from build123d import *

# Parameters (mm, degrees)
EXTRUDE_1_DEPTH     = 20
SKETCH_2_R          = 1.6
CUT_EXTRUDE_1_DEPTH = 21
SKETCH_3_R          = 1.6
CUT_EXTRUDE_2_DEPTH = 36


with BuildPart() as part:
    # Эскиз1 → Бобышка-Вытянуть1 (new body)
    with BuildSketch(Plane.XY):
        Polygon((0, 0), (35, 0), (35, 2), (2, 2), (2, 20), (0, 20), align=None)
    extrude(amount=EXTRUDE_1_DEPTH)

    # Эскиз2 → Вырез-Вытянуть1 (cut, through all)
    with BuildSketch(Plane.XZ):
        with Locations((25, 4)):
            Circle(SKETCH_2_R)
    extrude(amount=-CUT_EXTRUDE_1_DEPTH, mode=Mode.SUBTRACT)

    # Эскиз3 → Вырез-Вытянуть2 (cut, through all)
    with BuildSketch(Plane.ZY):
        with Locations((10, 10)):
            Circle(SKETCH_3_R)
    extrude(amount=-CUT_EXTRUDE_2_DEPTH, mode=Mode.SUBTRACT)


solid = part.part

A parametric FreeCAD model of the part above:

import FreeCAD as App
import Part
import Sketcher
from FreeCAD import Vector

doc = App.newDocument("Part")
params = doc.addObject("Spreadsheet::Sheet", "Params")
for row, (alias, value) in enumerate([
    ("sketch1_width", "35 mm"),
    ("sketch1_width2", "33 mm"),
    ("sketch1_height", "18 mm"),
    ("pad1_length", "20 mm"),
    ("sketch2_diameter", "3.2 mm"),
    ("sketch3_diameter", "3.2 mm"),
], start=1):
    params.set(f"A{row}", alias)
    params.set(f"B{row}", "=" + value)
    params.setAlias(f"B{row}", alias)

body = doc.addObject("PartDesign::Body", "Body")

# Sketch on XY plane
sketch1 = body.newObject("Sketcher::SketchObject", "Sketch")
sketch1.AttachmentSupport = (doc.getObject("XY_Plane"), [""])
sketch1.MapMode = "FlatFace"
sketch1.addGeometry([
    Part.LineSegment(Vector(0, 0, 0), Vector(35, 0, 0)),  # 0
    Part.LineSegment(Vector(35, 0, 0), Vector(35, 2, 0)),  # 1
    Part.LineSegment(Vector(35, 2, 0), Vector(2, 2, 0)),  # 2
    Part.LineSegment(Vector(2, 2, 0), Vector(2, 20, 0)),  # 3
    Part.LineSegment(Vector(2, 20, 0), Vector(0, 20, 0)),  # 4
    Part.LineSegment(Vector(0, 20, 0), Vector(0, 0, 0)),  # 5
], False)
sketch1.addConstraint([
    Sketcher.Constraint("Coincident", 0, 2, 1, 1),
    Sketcher.Constraint("Coincident", 1, 2, 2, 1),
    Sketcher.Constraint("Coincident", 2, 2, 3, 1),
    Sketcher.Constraint("Coincident", 3, 2, 4, 1),
    Sketcher.Constraint("Coincident", 4, 2, 5, 1),
    Sketcher.Constraint("Coincident", 5, 2, 0, 1),
    Sketcher.Constraint("Horizontal", 0),
    Sketcher.Constraint("Vertical", 1),
    Sketcher.Constraint("Horizontal", 2),
    Sketcher.Constraint("Vertical", 3),
    Sketcher.Constraint("Horizontal", 4),
    Sketcher.Constraint("Vertical", 5),
    Sketcher.Constraint("Coincident", 5, 2, -1, 1),
    Sketcher.Constraint("Equal", 4, 1),
    Sketcher.Constraint("DistanceX", 0, 1, 0, 2, 35.0),
    Sketcher.Constraint("DistanceX", 2, 2, 2, 1, 33.0),
    Sketcher.Constraint("DistanceY", 3, 1, 3, 2, 18.0),
])
sketch1.setExpression("Constraints[14]", "Params.sketch1_width")
sketch1.setExpression("Constraints[15]", "Params.sketch1_width2")
sketch1.setExpression("Constraints[16]", "Params.sketch1_height")
pad1 = body.newObject("PartDesign::Pad", "Pad")
pad1.Profile = sketch1
pad1.setExpression("Length", "Params.pad1_length")

# Sketch on XZ plane
sketch2 = body.newObject("Sketcher::SketchObject", "Sketch001")
sketch2.AttachmentSupport = (doc.getObject("XZ_Plane"), [""])
sketch2.MapMode = "FlatFace"
sketch2.addGeometry(Part.Circle(Vector(25, 4, 0), Vector(0, 0, 1), 1.6), False)
sketch2.addConstraint([
    Sketcher.Constraint("Diameter", 0, 3.2),
    Sketcher.Constraint("DistanceX", -1, 1, 0, 3, 25.0),
    Sketcher.Constraint("DistanceY", -1, 1, 0, 3, 4.0),
])
sketch2.setExpression("Constraints[0]", "Params.sketch2_diameter")
pocket1 = body.newObject("PartDesign::Pocket", "Pocket")
pocket1.Profile = sketch2
pocket1.Type = "ThroughAll"

# Sketch on YZ plane
sketch3 = body.newObject("Sketcher::SketchObject", "Sketch002")
sketch3.AttachmentSupport = (doc.getObject("YZ_Plane"), [""])
sketch3.MapMode = "FlatFace"
sketch3.addGeometry(Part.Circle(Vector(10, 10, 0), Vector(0, 0, 1), 1.6), False)
sketch3.addConstraint([
    Sketcher.Constraint("Diameter", 0, 3.2),
    Sketcher.Constraint("DistanceX", -1, 1, 0, 3, 10.0),
    Sketcher.Constraint("DistanceY", -1, 1, 0, 3, 10.0),
])
sketch3.setExpression("Constraints[0]", "Params.sketch3_diameter")
pocket2 = body.newObject("PartDesign::Pocket", "Pocket001")
pocket2.Profile = sketch3
pocket2.Type = "ThroughAll"
pocket2.Reversed = True

doc.recompute()
